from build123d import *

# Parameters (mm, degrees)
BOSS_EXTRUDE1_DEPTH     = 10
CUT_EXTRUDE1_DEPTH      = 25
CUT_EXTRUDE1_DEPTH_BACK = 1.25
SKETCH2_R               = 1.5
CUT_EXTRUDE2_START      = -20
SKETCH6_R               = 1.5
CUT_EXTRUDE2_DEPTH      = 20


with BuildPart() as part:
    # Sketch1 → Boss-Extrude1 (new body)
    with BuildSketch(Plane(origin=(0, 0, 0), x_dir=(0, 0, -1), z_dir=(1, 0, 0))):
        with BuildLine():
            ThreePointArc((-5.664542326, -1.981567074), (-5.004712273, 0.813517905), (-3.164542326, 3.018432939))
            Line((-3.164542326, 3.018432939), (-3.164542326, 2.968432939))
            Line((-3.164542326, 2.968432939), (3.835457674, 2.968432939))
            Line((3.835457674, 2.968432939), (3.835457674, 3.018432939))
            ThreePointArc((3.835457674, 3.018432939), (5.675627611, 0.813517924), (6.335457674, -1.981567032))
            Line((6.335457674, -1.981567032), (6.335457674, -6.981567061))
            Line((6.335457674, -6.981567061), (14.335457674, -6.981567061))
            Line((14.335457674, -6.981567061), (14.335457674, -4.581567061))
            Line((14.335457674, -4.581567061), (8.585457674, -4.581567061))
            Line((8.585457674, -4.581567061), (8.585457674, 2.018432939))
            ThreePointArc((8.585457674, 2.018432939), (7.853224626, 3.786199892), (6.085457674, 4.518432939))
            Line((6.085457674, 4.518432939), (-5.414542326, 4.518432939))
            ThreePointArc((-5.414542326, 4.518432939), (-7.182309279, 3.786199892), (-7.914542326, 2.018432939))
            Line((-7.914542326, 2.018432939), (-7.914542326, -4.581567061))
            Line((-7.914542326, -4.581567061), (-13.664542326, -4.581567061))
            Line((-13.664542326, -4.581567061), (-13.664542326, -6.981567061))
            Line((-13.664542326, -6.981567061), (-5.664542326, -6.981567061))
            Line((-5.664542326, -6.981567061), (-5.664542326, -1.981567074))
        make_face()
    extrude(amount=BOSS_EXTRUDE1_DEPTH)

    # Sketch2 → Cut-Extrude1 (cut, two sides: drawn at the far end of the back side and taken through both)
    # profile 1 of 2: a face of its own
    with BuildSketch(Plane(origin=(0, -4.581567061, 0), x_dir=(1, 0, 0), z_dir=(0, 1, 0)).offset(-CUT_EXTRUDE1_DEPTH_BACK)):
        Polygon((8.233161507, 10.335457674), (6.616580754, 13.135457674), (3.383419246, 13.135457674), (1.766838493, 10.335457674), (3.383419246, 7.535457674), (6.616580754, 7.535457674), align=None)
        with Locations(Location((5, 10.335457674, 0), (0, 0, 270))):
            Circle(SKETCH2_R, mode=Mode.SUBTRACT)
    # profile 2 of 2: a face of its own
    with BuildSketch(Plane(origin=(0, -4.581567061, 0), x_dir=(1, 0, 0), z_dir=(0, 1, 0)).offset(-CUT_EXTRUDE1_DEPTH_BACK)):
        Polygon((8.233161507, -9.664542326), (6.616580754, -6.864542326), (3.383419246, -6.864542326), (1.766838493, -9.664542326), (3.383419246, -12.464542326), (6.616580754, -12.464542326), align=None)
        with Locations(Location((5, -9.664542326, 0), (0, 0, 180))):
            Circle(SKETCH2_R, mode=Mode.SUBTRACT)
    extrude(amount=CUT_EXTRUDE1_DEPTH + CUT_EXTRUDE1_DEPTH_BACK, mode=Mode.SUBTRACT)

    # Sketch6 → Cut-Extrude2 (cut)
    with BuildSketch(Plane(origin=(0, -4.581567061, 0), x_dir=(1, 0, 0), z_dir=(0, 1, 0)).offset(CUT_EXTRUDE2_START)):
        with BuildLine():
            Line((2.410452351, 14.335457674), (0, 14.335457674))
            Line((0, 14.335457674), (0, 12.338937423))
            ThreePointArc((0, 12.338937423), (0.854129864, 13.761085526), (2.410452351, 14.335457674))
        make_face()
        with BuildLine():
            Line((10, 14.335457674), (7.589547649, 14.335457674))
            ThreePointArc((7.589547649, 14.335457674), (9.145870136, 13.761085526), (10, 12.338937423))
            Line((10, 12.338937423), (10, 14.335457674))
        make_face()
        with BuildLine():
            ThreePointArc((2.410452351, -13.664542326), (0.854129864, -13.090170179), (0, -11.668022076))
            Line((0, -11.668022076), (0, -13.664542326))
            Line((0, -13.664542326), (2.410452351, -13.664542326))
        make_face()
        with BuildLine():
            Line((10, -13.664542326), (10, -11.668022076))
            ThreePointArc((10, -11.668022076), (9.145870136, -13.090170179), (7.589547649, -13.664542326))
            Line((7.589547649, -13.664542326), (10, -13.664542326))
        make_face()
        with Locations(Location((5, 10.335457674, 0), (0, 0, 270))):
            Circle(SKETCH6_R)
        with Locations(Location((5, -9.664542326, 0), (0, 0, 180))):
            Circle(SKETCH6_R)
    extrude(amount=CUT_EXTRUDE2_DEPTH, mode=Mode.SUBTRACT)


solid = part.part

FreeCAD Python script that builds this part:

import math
import FreeCAD as App
import Part
import Sketcher
Q = App.Units.Quantity


def add_polygon(sketch, points):
    """Adds a closed chain of lines whose ends are joined by coincident constraints."""
    first, n = sketch.GeometryCount, len(points)
    for a, b in zip(points, points[1:] + points[:1]):
        sketch.addGeometry(Part.LineSegment(App.Vector(*a, 0), App.Vector(*b, 0)), False)
    for i in range(n):
        sketch.addConstraint(Sketcher.Constraint("Coincident", first + i, 2, first + (i + 1) % n, 1))

doc = App.newDocument("Part")
body = doc.addObject("PartDesign::Body", "Body")

sketch1 = body.newObject("Sketcher::SketchObject", "Sketch")
sketch1.AttachmentSupport = (doc.getObject("YZ_Plane"), [""])
sketch1.MapMode = "FlatFace"
sketch1.addGeometry(Part.ArcOfCircle(Part.Circle(App.Vector(-1.98, -0.59, 0), App.Vector(0, 0, 1), 6.25), math.radians(37), math.radians(90)), False)
sketch1.addGeometry(Part.LineSegment(App.Vector(3.02, 3.16, 0), App.Vector(2.97, 3.16, 0)), False)
sketch1.addGeometry(Part.LineSegment(App.Vector(2.97, 3.16, 0), App.Vector(2.97, -3.84, 0)), False)
sketch1.addGeometry(Part.LineSegment(App.Vector(2.97, -3.84, 0), App.Vector(3.02, -3.84, 0)), False)
sketch1.addGeometry(Part.ArcOfCircle(Part.Circle(App.Vector(-1.98, -0.09, 0), App.Vector(0, 0, 1), 6.25), math.radians(-90), math.radians(-37)), False)
sketch1.addGeometry(Part.LineSegment(App.Vector(-1.98, -6.34, 0), App.Vector(-6.98, -6.34, 0)), False)
sketch1.addGeometry(Part.LineSegment(App.Vector(-6.98, -6.34, 0), App.Vector(-6.98, -14.34, 0)), False)
sketch1.addGeometry(Part.LineSegment(App.Vector(-6.98, -14.34, 0), App.Vector(-4.58, -14.34, 0)), False)
sketch1.addGeometry(Part.LineSegment(App.Vector(-4.58, -14.34, 0), App.Vector(-4.58, -8.59, 0)), False)
sketch1.addGeometry(Part.LineSegment(App.Vector(-4.58, -8.59, 0), App.Vector(2.02, -8.59, 0)), False)
sketch1.addGeometry(Part.ArcOfCircle(Part.Circle(App.Vector(2.02, -6.09, 0), App.Vector(0, 0, 1), 2.5), math.radians(-90), math.radians(0)), False)
sketch1.addGeometry(Part.LineSegment(App.Vector(4.52, -6.09, 0), App.Vector(4.52, 5.41, 0)), False)
sketch1.addGeometry(Part.ArcOfCircle(Part.Circle(App.Vector(2.02, 5.41, 0), App.Vector(0, 0, 1), 2.5), math.radians(0), math.radians(90)), False)
sketch1.addGeometry(Part.LineSegment(App.Vector(2.02, 7.91, 0), App.Vector(-4.58, 7.91, 0)), False)
sketch1.addGeometry(Part.LineSegment(App.Vector(-4.58, 7.91, 0), App.Vector(-4.58, 13.66, 0)), False)
sketch1.addGeometry(Part.LineSegment(App.Vector(-4.58, 13.66, 0), App.Vector(-6.98, 13.66, 0)), False)
sketch1.addGeometry(Part.LineSegment(App.Vector(-6.98, 13.66, 0), App.Vector(-6.98, 5.66, 0)), False)
sketch1.addGeometry(Part.LineSegment(App.Vector(-6.98, 5.66, 0), App.Vector(-1.98, 5.66, 0)), False)
sketch1.addConstraint(Sketcher.Constraint("Coincident", 0, 1, 1, 1))
sketch1.addConstraint(Sketcher.Constraint("Coincident", 1, 2, 2, 1))
sketch1.addConstraint(Sketcher.Constraint("Coincident", 2, 2, 3, 1))
sketch1.addConstraint(Sketcher.Constraint("Coincident", 3, 2, 4, 2))
sketch1.addConstraint(Sketcher.Constraint("Tangent", 4, 1, 5, 1))
sketch1.addConstraint(Sketcher.Constraint("Coincident", 5, 2, 6, 1))
sketch1.addConstraint(Sketcher.Constraint("Coincident", 6, 2, 7, 1))
sketch1.addConstraint(Sketcher.Constraint("Coincident", 7, 2, 8, 1))
sketch1.addConstraint(Sketcher.Constraint("Coincident", 8, 2, 9, 1))
sketch1.addConstraint(Sketcher.Constraint("Tangent", 9, 2, 10, 1))
sketch1.addConstraint(Sketcher.Constraint("Tangent", 10, 2, 11, 1))
sketch1.addConstraint(Sketcher.Constraint("Tangent", 11, 2, 12, 1))
sketch1.addConstraint(Sketcher.Constraint("Tangent", 12, 2, 13, 1))
sketch1.addConstraint(Sketcher.Constraint("Coincident", 13, 2, 14, 1))
sketch1.addConstraint(Sketcher.Constraint("Coincident", 14, 2, 15, 1))
sketch1.addConstraint(Sketcher.Constraint("Coincident", 15, 2, 16, 1))
sketch1.addConstraint(Sketcher.Constraint("Coincident", 16, 2, 17, 1))
sketch1.addConstraint(Sketcher.Constraint("Tangent", 17, 2, 0, 2))
sketch1.addConstraint(Sketcher.Constraint("Horizontal", 1))
sketch1.addConstraint(Sketcher.Constraint("Vertical", 2))
sketch1.addConstraint(Sketcher.Constraint("Horizontal", 3))
sketch1.addConstraint(Sketcher.Constraint("Horizontal", 5))
sketch1.addConstraint(Sketcher.Constraint("Vertical", 6))
sketch1.addConstraint(Sketcher.Constraint("Horizontal", 7))
sketch1.addConstraint(Sketcher.Constraint("Vertical", 8))
sketch1.addConstraint(Sketcher.Constraint("Horizontal", 9))
sketch1.addConstraint(Sketcher.Constraint("Vertical", 11))
sketch1.addConstraint(Sketcher.Constraint("Horizontal", 13))
sketch1.addConstraint(Sketcher.Constraint("Vertical", 14))
sketch1.addConstraint(Sketcher.Constraint("Horizontal", 15))
sketch1.addConstraint(Sketcher.Constraint("Vertical", 16))
sketch1.addConstraint(Sketcher.Constraint("Horizontal", 17))
sketch1.addConstraint(Sketcher.Constraint("Equal", 0, 4))
sketch1.addConstraint(Sketcher.Constraint("Equal", 10, 12))
sketch1.addConstraint(Sketcher.Constraint("Vertical", 0, 3, 4, 3))
sketch1.addConstraint(Sketcher.Constraint("Vertical", 0, 1, 3, 2))
sketch1.addConstraint(Sketcher.Constraint("Vertical", 8, 2, 13, 2))
sketch1.addConstraint(Sketcher.Constraint("Vertical", 6, 2, 15, 2))
sketch1.addConstraint(Sketcher.Constraint("Equal", 8, 14))
sketch1.addConstraint(Sketcher.Constraint("Equal", 6, 16))
sketch1.addConstraint(Sketcher.Constraint("Radius", 10, 2.5))
sketch1.addConstraint(Sketcher.Constraint("DistanceX", 5, 2, 5, 1, 5.0))
sketch1.addConstraint(Sketcher.Constraint("DistanceY", 2, 2, 2, 1, 7.0))
sketch1.addConstraint(Sketcher.Constraint("DistanceY", 6, 2, 6, 1, 8.0))
sketch1.addConstraint(Sketcher.Constraint("Radius", 0, 6.25))
sketch1.addConstraint(Sketcher.Constraint("DistanceX", 7, 1, 7, 2, 2.4))
sketch1.addConstraint(Sketcher.Constraint("DistanceX", 9, 1, 9, 2, 6.6))
sketch1.addConstraint(Sketcher.Constraint("DistanceY", 11, 1, 11, 2, 11.5))
sketch1.addConstraint(Sketcher.Constraint("DistanceY", 10, 3, 4, 3, 6.0))
sketch1.addConstraint(Sketcher.Constraint("DistanceX", 1, 2, 1, 1, 0.05))
sketch1.addConstraint(Sketcher.Constraint("DistanceX", 0, 3, -1, 1, 1.981567))
sketch1.addConstraint(Sketcher.Constraint("DistanceY", 0, 3, -1, 1, 0.585458))
pad1 = body.newObject("PartDesign::Pad", "Pad")
pad1.Profile = sketch1
pad1.Length = 10

sketch2 = body.newObject("Sketcher::SketchObject", "Sketch001")
sketch2.AttachmentSupport = (doc.getObject("XZ_Plane"), [""])
sketch2.MapMode = "FlatFace"
sketch2.AttachmentOffset = App.Placement(App.Vector(0, 0, 4.581567), App.Rotation())
add_polygon(sketch2, [(8.2, -10.3), (6.6, -13.1), (3.4, -13.1), (1.8, -10.3), (3.4, -7.5), (6.6, -7.5)])
sketch2.addGeometry(Part.Circle(App.Vector(5, -10.3, 0), App.Vector(0, 0, 1), 1.5), False)
add_polygon(sketch2, [(8.2, 9.7), (6.6, 6.9), (3.4, 6.9), (1.8, 9.7), (3.4, 12.5), (6.6, 12.5)])
sketch2.addGeometry(Part.Circle(App.Vector(5, 9.7, 0), App.Vector(0, 0, 1), 1.5), False)
sketch2.addConstraint(Sketcher.Constraint("Horizontal", 1))
sketch2.addConstraint(Sketcher.Constraint("Horizontal", 4))
sketch2.addConstraint(Sketcher.Constraint("Horizontal", 8))
sketch2.addConstraint(Sketcher.Constraint("Horizontal", 11))
sketch2.addConstraint(Sketcher.Constraint("Equal", 6, 13))
sketch2.addConstraint(Sketcher.Constraint("Parallel", 0, 3))
sketch2.addConstraint(Sketcher.Constraint("Parallel", 2, 5))
sketch2.addConstraint(Sketcher.Constraint("Parallel", 3, 7))
sketch2.addConstraint(Sketcher.Constraint("Parallel", 5, 9))
sketch2.addConstraint(Sketcher.Constraint("Parallel", 7, 10))
sketch2.addConstraint(Sketcher.Constraint("Parallel", 9, 12))
sketch2.addConstraint(Sketcher.Constraint("Horizontal", 6, 3, 2, 2))
sketch2.addConstraint(Sketcher.Constraint("Horizontal", 2, 2, 5, 2))
sketch2.addConstraint(Sketcher.Constraint("Horizontal", 13, 3, 9, 2))
sketch2.addConstraint(Sketcher.Constraint("Horizontal", 9, 2, 12, 2))
sketch2.addConstraint(Sketcher.Constraint("Vertical", 6, 3, 13, 3))
sketch2.addConstraint(Sketcher.Constraint("Vertical", 1, 2, 3, 2))
sketch2.addConstraint(Sketcher.Constraint("Vertical", 0, 2, 4, 2))
sketch2.addConstraint(Sketcher.Constraint("Vertical", 4, 2, 7, 2))
sketch2.addConstraint(Sketcher.Constraint("Vertical", 3, 2, 8, 2))
sketch2.addConstraint(Sketcher.Constraint("Vertical", 2, 2, 9, 2))
sketch2.addConstraint(Sketcher.Constraint("Vertical", 8, 2, 10, 2))
sketch2.addConstraint(Sketcher.Constraint("Diameter", 6, 3.0))
sketch2.addConstraint(Sketcher.Constraint("Angle", 0, Q("-120 deg")))
sketch2.addConstraint(Sketcher.Constraint("DistanceX", -1, 1, 6, 3, 5.0))
sketch2.addConstraint(Sketcher.Constraint("DistanceY", 6, 3, 13, 3, 20.0))
sketch2.addConstraint(Sketcher.Constraint("DistanceY", 0, 2, 6, 3, 2.8))
sketch2.addConstraint(Sketcher.Constraint("DistanceX", 1, 2, 1, 1, 3.233162))
sketch2.addConstraint(Sketcher.Constraint("DistanceX", -1, 1, 0, 2, 6.616581))
sketch2.addConstraint(Sketcher.Constraint("DistanceY", 6, 3, -1, 1, 10.335458))
pocket1 = body.newObject("PartDesign::Pocket", "Pocket")
pocket1.Profile = sketch2
pocket1.Type = "TwoLengths"
pocket1.Length = 25
pocket1.Length2 = 1.25

sketch3 = body.newObject("Sketcher::SketchObject", "Sketch002")
sketch3.AttachmentSupport = (doc.getObject("XZ_Plane"), [""])
sketch3.MapMode = "FlatFace"
sketch3.AttachmentOffset = App.Placement(App.Vector(0, 0, 24.581567), App.Rotation())
sketch3.addGeometry(Part.LineSegment(App.Vector(2.4, -14.3, 0), App.Vector(0, -14.3, 0)), False)
sketch3.addGeometry(Part.LineSegment(App.Vector(0, -14.3, 0), App.Vector(0, -12.3, 0)), False)
sketch3.addGeometry(Part.ArcOfCircle(Part.Circle(App.Vector(2.4, -11.8, 0), App.Vector(0, 0, 1), 2.5), math.radians(-168), math.radians(-91)), False)
sketch3.addGeometry(Part.LineSegment(App.Vector(10, -14.3, 0), App.Vector(7.6, -14.3, 0)), False)
sketch3.addGeometry(Part.ArcOfCircle(Part.Circle(App.Vector(7.6, -11.8, 0), App.Vector(0, 0, 1), 2.5), math.radians(-89), math.radians(-12)), False)
sketch3.addGeometry(Part.LineSegment(App.Vector(10, -12.3, 0), App.Vector(10, -14.3, 0)), False)
sketch3.addGeometry(Part.ArcOfCircle(Part.Circle(App.Vector(2.4, 11.2, 0), App.Vector(0, 0, 1), 2.5), math.radians(91), math.radians(168)), False)
sketch3.addGeometry(Part.LineSegment(App.Vector(0, 11.7, 0), App.Vector(0, 13.7, 0)), False)
sketch3.addGeometry(Part.LineSegment(App.Vector(0, 13.7, 0), App.Vector(2.4, 13.7, 0)), False)
sketch3.addGeometry(Part.LineSegment(App.Vector(10, 13.7, 0), App.Vector(10, 11.7, 0)), False)
sketch3.addGeometry(Part.ArcOfCircle(Part.Circle(App.Vector(7.6, 11.2, 0), App.Vector(0, 0, 1), 2.5), math.radians(12), math.radians(89)), False)
sketch3.addGeometry(Part.LineSegment(App.Vector(7.6, 13.7, 0), App.Vector(10, 13.7, 0)), False)
sketch3.addGeometry(Part.Circle(App.Vector(5, -10.3, 0), App.Vector(0, 0, 1), 1.5), False)
sketch3.addGeometry(Part.Circle(App.Vector(5, 9.7, 0), App.Vector(0, 0, 1), 1.5), False)
sketch3.addConstraint(Sketcher.Constraint("Coincident", 0, 2, 1, 1))
sketch3.addConstraint(Sketcher.Constraint("Coincident", 1, 2, 2, 1))
sketch3.addConstraint(Sketcher.Constraint("Coincident", 2, 2, 0, 1))
sketch3.addConstraint(Sketcher.Constraint("Coincident", 3, 2, 4, 1))
sketch3.addConstraint(Sketcher.Constraint("Coincident", 4, 2, 5, 1))
sketch3.addConstraint(Sketcher.Constraint("Coincident", 5, 2, 3, 1))
sketch3.addConstraint(Sketcher.Constraint("Coincident", 6, 2, 7, 1))
sketch3.addConstraint(Sketcher.Constraint("Coincident", 7, 2, 8, 1))
sketch3.addConstraint(Sketcher.Constraint("Coincident", 8, 2, 6, 1))
sketch3.addConstraint(Sketcher.Constraint("Coincident", 9, 2, 10, 1))
sketch3.addConstraint(Sketcher.Constraint("Coincident", 10, 2, 11, 1))
sketch3.addConstraint(Sketcher.Constraint("Coincident", 11, 2, 9, 1))
sketch3.addConstraint(Sketcher.Constraint("Horizontal", 0))
sketch3.addConstraint(Sketcher.Constraint("Vertical", 1))
sketch3.addConstraint(Sketcher.Constraint("Horizontal", 3))
sketch3.addConstraint(Sketcher.Constraint("Vertical", 5))
sketch3.addConstraint(Sketcher.Constraint("Vertical", 7))
sketch3.addConstraint(Sketcher.Constraint("Horizontal", 8))
sketch3.addConstraint(Sketcher.Constraint("Vertical", 9))
sketch3.addConstraint(Sketcher.Constraint("Horizontal", 11))
sketch3.addConstraint(Sketcher.Constraint("Equal", 2, 4))
sketch3.addConstraint(Sketcher.Constraint("Equal", 4, 6))
sketch3.addConstraint(Sketcher.Constraint("Equal", 6, 10))
sketch3.addConstraint(Sketcher.Constraint("Equal", 12, 13))
sketch3.addConstraint(Sketcher.Constraint("PointOnObject", 0, 2, -2))
sketch3.addConstraint(Sketcher.Constraint("PointOnObject", 6, 2, -2))
sketch3.addConstraint(Sketcher.Constraint("Horizontal", 2, 3, 4, 3))
sketch3.addConstraint(Sketcher.Constraint("Horizontal", 6, 3, 10, 3))
sketch3.addConstraint(Sketcher.Constraint("Horizontal", 2, 2, 3, 2))
sketch3.addConstraint(Sketcher.Constraint("Horizontal", 1, 2, 4, 2))
sketch3.addConstraint(Sketcher.Constraint("Horizontal", 6, 2, 9, 2))
sketch3.addConstraint(Sketcher.Constraint("Horizontal", 8, 2, 10, 2))
sketch3.addConstraint(Sketcher.Constraint("Vertical", 2, 3, 6, 3))
sketch3.addConstraint(Sketcher.Constraint("Vertical", 4, 3, 10, 3))
sketch3.addConstraint(Sketcher.Constraint("Vertical", 12, 3, 13, 3))
sketch3.addConstraint(Sketcher.Constraint("Vertical", 2, 2, 8, 2))
sketch3.addConstraint(Sketcher.Constraint("Diameter", 12, 3.0))
sketch3.addConstraint(Sketcher.Constraint("Radius", 2, 2.5))
sketch3.addConstraint(Sketcher.Constraint("DistanceX", -1, 1, 12, 3, 5.0))
sketch3.addConstraint(Sketcher.Constraint("DistanceX", -1, 1, 4, 2, 10.0))
sketch3.addConstraint(Sketcher.Constraint("DistanceY", 12, 3, 13, 3, 20.0))
sketch3.addConstraint(Sketcher.Constraint("DistanceY", 0, 2, 12, 3, 4.0))
sketch3.addConstraint(Sketcher.Constraint("DistanceY", 13, 3, 7, 2, 4.0))
sketch3.addConstraint(Sketcher.Constraint("DistanceY", 1, 1, 1, 2, 1.99652))
sketch3.addConstraint(Sketcher.Constraint("DistanceX", 0, 2, 0, 1, 2.410452))
sketch3.addConstraint(Sketcher.Constraint("DistanceY", 2, 3, -1, 1, 11.835752))
pocket2 = body.newObject("PartDesign::Pocket", "Pocket001")
pocket2.Profile = sketch3
pocket2.Length = 20

doc.recompute()
